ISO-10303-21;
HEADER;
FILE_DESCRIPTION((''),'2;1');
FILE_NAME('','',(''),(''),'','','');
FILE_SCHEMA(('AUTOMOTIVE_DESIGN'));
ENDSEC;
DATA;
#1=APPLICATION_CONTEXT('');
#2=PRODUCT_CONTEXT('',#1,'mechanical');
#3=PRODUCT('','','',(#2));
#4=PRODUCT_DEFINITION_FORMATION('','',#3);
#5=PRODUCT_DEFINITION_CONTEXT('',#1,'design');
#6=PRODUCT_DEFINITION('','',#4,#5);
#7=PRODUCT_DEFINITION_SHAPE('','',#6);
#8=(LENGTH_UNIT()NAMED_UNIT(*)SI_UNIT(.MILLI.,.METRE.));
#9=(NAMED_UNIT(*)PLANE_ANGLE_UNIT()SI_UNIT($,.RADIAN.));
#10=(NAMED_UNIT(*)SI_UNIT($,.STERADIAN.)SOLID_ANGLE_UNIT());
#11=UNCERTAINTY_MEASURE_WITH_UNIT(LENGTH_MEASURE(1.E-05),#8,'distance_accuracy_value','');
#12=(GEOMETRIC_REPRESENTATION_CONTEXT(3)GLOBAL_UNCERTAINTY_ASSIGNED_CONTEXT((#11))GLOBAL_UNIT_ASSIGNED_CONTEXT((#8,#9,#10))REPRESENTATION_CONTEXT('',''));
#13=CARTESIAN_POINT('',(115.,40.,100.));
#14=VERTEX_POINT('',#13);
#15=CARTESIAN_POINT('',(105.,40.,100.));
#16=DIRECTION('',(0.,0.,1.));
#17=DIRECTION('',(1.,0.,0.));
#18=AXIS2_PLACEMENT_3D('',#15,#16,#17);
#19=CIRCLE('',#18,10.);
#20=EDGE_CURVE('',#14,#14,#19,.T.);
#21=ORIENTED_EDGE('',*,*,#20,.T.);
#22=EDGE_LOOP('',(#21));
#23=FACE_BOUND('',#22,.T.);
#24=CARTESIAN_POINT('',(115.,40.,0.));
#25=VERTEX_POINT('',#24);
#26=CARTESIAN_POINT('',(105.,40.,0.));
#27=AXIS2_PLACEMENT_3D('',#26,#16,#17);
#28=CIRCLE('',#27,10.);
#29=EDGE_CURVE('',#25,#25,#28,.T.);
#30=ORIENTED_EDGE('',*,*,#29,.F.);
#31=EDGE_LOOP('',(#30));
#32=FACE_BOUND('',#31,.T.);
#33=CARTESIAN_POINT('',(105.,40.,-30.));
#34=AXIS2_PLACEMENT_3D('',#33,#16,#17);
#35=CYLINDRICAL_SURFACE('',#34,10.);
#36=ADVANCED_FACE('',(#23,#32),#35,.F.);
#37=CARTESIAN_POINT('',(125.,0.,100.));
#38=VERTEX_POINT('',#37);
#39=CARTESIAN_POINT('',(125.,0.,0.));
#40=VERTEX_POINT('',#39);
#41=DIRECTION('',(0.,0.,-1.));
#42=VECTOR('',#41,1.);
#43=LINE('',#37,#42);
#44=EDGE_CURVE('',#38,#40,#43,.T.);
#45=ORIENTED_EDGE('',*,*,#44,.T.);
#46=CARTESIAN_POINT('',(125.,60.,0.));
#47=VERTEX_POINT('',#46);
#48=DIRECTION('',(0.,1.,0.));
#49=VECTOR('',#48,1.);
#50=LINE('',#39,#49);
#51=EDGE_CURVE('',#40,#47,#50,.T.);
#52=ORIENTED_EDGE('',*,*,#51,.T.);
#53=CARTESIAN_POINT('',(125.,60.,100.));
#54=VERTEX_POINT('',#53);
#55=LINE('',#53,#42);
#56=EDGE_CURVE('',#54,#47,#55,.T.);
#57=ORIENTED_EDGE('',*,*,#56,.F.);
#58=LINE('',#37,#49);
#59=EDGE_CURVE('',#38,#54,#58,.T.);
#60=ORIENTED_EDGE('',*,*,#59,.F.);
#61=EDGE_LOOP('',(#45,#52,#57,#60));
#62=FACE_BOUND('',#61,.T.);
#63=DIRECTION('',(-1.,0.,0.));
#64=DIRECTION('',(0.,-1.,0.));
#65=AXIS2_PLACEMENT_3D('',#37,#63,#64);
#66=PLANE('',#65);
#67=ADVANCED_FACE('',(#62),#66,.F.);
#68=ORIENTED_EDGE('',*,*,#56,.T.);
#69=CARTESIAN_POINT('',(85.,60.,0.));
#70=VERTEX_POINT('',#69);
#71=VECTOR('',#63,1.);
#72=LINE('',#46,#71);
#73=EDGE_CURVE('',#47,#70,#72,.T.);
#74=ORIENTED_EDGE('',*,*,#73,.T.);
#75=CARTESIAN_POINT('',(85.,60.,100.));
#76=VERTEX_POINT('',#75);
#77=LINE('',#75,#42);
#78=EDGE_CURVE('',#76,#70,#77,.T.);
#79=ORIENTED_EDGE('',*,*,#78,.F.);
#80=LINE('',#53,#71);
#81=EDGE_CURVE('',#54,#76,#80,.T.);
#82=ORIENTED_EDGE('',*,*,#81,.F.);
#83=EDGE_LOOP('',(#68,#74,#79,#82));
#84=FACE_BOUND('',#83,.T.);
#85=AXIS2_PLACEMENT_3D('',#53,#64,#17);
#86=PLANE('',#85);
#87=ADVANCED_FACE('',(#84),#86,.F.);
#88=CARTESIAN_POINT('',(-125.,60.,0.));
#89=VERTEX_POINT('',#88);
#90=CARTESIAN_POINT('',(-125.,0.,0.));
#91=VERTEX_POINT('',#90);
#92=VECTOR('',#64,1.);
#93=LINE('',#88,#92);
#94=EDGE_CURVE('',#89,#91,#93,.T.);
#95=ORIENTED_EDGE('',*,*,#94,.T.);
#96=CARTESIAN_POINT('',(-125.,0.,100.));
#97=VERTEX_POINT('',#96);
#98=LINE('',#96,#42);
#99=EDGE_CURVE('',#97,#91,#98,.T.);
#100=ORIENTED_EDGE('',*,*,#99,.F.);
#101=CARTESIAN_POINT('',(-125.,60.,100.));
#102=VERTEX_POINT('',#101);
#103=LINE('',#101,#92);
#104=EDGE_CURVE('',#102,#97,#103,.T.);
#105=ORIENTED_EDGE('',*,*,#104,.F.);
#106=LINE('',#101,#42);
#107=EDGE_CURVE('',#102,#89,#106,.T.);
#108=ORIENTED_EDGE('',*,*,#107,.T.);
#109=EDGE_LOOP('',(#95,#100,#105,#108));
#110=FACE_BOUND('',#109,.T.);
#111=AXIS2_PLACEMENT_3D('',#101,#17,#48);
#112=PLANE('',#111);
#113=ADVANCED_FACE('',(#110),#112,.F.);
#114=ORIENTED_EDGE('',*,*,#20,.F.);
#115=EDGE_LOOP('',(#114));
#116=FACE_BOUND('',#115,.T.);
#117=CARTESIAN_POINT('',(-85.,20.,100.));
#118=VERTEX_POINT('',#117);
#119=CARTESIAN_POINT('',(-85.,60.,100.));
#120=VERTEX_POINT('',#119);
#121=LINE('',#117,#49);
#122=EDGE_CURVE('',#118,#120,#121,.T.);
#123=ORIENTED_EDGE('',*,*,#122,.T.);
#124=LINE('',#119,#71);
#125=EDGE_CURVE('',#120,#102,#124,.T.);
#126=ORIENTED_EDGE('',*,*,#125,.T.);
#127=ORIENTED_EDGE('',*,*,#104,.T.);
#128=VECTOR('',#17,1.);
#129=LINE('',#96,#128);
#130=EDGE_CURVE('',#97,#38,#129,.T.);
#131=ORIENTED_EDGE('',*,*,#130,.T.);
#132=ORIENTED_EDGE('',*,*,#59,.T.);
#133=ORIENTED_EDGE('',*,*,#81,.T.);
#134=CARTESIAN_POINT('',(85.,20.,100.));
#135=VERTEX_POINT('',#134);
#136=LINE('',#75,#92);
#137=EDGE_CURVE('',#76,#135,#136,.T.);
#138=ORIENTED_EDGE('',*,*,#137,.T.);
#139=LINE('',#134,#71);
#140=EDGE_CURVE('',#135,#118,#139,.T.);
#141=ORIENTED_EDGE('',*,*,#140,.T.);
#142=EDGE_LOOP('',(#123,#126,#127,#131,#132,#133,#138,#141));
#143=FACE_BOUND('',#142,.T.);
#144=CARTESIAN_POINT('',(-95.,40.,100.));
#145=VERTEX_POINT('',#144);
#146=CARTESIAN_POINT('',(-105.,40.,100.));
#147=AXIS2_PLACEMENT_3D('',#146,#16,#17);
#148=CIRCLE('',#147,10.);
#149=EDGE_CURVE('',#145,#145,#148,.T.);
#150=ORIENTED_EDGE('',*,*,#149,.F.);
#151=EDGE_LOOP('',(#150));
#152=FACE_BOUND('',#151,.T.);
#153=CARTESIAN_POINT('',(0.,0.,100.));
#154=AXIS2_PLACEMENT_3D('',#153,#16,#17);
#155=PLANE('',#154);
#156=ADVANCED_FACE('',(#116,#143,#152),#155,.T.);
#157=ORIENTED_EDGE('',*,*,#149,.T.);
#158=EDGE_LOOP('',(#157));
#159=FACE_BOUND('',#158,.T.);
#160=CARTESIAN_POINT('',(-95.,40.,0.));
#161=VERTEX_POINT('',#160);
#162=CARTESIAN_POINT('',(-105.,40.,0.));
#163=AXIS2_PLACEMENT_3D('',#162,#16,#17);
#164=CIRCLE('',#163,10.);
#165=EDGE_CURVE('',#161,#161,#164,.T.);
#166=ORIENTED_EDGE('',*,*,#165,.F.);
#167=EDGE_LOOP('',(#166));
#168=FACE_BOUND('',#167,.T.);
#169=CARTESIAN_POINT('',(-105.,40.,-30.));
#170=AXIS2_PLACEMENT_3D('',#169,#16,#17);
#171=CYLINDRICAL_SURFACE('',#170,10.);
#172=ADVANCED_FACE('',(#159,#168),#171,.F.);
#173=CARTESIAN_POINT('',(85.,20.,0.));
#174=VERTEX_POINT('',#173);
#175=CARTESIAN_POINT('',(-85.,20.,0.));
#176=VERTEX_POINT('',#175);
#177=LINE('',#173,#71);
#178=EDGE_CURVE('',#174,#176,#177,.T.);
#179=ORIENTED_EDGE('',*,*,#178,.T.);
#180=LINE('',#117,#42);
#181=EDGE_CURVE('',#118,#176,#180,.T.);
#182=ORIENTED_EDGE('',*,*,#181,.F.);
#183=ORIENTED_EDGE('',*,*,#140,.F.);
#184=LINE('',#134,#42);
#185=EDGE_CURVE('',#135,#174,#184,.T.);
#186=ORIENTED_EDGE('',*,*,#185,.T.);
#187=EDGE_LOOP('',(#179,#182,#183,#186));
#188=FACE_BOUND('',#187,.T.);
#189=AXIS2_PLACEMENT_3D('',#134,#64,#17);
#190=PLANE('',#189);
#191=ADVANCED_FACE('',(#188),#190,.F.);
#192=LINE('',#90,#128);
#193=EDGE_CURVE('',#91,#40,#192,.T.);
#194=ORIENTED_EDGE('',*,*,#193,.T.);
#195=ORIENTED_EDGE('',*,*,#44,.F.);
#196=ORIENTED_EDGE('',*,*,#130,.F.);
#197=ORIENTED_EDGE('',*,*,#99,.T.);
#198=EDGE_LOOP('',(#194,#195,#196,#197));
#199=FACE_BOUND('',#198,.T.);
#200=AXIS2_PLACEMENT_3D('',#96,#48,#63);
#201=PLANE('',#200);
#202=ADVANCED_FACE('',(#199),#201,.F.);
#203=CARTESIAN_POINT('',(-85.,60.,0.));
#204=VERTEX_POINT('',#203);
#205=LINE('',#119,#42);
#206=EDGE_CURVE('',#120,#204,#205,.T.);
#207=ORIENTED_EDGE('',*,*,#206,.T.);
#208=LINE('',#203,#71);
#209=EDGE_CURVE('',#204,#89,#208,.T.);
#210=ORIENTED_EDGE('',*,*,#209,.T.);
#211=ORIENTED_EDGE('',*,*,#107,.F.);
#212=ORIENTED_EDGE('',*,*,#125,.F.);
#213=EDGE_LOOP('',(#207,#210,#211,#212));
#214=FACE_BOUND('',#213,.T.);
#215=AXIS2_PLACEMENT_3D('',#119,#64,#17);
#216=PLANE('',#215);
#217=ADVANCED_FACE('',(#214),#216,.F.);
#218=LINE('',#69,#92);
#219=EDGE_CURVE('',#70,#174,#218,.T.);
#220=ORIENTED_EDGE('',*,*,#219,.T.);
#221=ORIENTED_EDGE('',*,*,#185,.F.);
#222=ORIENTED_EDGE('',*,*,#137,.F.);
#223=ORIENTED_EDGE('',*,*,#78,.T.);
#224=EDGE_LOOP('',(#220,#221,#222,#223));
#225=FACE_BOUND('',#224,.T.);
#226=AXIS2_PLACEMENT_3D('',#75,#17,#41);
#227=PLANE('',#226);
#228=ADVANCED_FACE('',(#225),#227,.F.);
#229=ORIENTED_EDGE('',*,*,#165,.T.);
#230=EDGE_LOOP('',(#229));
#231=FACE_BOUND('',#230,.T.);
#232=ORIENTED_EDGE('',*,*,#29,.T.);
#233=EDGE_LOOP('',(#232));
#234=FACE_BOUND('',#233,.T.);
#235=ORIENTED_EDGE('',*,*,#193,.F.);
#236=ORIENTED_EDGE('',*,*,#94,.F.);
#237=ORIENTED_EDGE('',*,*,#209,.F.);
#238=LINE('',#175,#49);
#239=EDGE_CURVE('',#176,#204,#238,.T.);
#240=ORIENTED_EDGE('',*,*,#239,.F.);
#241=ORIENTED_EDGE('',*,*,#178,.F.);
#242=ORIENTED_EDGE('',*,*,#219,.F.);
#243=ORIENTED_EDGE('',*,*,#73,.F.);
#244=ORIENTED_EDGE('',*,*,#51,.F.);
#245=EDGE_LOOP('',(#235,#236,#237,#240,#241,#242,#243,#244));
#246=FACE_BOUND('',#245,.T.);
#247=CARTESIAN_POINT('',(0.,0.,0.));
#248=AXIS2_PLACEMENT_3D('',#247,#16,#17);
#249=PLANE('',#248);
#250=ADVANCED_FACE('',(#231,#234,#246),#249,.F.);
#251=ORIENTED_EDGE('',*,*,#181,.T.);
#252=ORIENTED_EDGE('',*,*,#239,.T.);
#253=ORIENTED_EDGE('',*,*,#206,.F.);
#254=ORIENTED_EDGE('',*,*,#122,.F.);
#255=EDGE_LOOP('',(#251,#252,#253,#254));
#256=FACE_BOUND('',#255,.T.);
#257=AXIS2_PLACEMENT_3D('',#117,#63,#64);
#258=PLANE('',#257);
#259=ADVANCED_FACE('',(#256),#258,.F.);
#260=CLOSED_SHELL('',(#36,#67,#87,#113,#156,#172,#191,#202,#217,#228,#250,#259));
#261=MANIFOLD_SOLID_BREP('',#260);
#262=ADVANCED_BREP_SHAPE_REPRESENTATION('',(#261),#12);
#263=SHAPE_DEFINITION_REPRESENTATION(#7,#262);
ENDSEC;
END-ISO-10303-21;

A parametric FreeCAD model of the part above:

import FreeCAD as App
import Part
import Sketcher
from FreeCAD import Vector


def add_polygon(sketch, points):
    """Adds a closed chain of lines whose ends are joined by coincident constraints."""
    first, n = sketch.GeometryCount, len(points)
    for a, b in zip(points, points[1:] + points[:1]):
        sketch.addGeometry(Part.LineSegment(App.Vector(*a, 0), App.Vector(*b, 0)), False)
    for i in range(n):
        sketch.addConstraint(Sketcher.Constraint("Coincident", first + i, 2, first + (i + 1) % n, 1))

doc = App.newDocument("Part")
body = doc.addObject("PartDesign::Body", "Body")

# Sketch on XY plane
sketch1 = doc.addObject("Sketcher::SketchObject", "Sketch")
body.addObject(sketch1)
sketch1.AttachmentSupport = (doc.XY_Plane, [""])
sketch1.MapMode = "FlatFace"
add_polygon(sketch1, [(-125, 0), (125, 0), (125, 60), (85, 60), (85, 20), (-85, 20), (-85, 60), (-125, 60)])  # lines 0-7
sketch1.addConstraint(Sketcher.Constraint("Horizontal", 0))
sketch1.addConstraint(Sketcher.Constraint("Vertical", 1))
sketch1.addConstraint(Sketcher.Constraint("Horizontal", 2))
sketch1.addConstraint(Sketcher.Constraint("Vertical", 3))
sketch1.addConstraint(Sketcher.Constraint("Horizontal", 4))
sketch1.addConstraint(Sketcher.Constraint("Vertical", 5))
sketch1.addConstraint(Sketcher.Constraint("Horizontal", 6))
sketch1.addConstraint(Sketcher.Constraint("Vertical", 7))
sketch1.addConstraint(Sketcher.Constraint("Symmetric", 0, 2, 7, 2, -1, 1))
sketch1.addConstraint(Sketcher.Constraint("Symmetric", 2, 2, 5, 2, -2))
sketch1.addConstraint(Sketcher.Constraint("Equal", 6, 3))
sketch1.addConstraint(Sketcher.Constraint("DistanceX", 0, 1, 0, 2, 250.0))
sketch1.addConstraint(Sketcher.Constraint("DistanceX", 2, 2, 2, 1, 40.0))
sketch1.addConstraint(Sketcher.Constraint("DistanceY", 1, 1, 1, 2, 60.0))
pad1 = doc.addObject("PartDesign::Pad", "Pad")
body.addObject(pad1)
pad1.Profile = sketch1
pad1.Length = 100

# Sketch on XY plane
sketch2 = doc.addObject("Sketcher::SketchObject", "Sketch001")
body.addObject(sketch2)
sketch2.AttachmentSupport = (doc.XY_Plane, [""])
sketch2.MapMode = "FlatFace"
sketch2.AttachmentOffset = App.Placement(Vector(0, 0, 100), App.Rotation())
sketch2.addGeometry(Part.Circle(Vector(-105, 40, 0), Vector(0, 0, 1), 10), False)
sketch2.addGeometry(Part.Circle(Vector(105, 40, 0), Vector(0, 0, 1), 10), False)
sketch2.addConstraint(Sketcher.Constraint("Equal", 0, 1))
sketch2.addConstraint(Sketcher.Constraint("Symmetric", 0, 3, 1, 3, -2))
sketch2.addConstraint(Sketcher.Constraint("Diameter", 0, 20.0))
sketch2.addConstraint(Sketcher.Constraint("DistanceX", 0, 3, -1, 1, 105.0))
sketch2.addConstraint(Sketcher.Constraint("DistanceY", -1, 1, 0, 3, 40.0))
pocket1 = doc.addObject("PartDesign::Pocket", "Pocket")
body.addObject(pocket1)
pocket1.Profile = sketch2
pocket1.Length = 130

doc.recompute()
